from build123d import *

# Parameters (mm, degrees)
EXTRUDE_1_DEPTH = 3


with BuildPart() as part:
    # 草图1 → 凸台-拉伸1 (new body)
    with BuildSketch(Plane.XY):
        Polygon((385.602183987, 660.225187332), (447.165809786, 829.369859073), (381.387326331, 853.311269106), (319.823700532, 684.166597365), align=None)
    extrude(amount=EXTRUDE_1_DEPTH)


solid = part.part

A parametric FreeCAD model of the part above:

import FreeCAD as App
import Part
import Sketcher
Q = App.Units.Quantity

doc = App.newDocument("Part")
body = doc.addObject("PartDesign::Body", "Body")

sketch1 = body.newObject("Sketcher::SketchObject", "Sketch")
sketch1.AttachmentSupport = (doc.getObject("XY_Plane"), [""])
sketch1.MapMode = "FlatFace"
sketch1.addGeometry(Part.LineSegment(App.Vector(386, 660, 0), App.Vector(447, 829, 0)), False)
sketch1.addGeometry(Part.LineSegment(App.Vector(447, 829, 0), App.Vector(381, 853, 0)), False)
sketch1.addGeometry(Part.LineSegment(App.Vector(381, 853, 0), App.Vector(320, 684, 0)), False)
sketch1.addGeometry(Part.LineSegment(App.Vector(320, 684, 0), App.Vector(386, 660, 0)), False)
sketch1.addConstraint(Sketcher.Constraint("Coincident", 0, 2, 1, 1))
sketch1.addConstraint(Sketcher.Constraint("Coincident", 1, 2, 2, 1))
sketch1.addConstraint(Sketcher.Constraint("Coincident", 2, 2, 3, 1))
sketch1.addConstraint(Sketcher.Constraint("Coincident", 3, 2, 0, 1))
sketch1.addConstraint(Sketcher.Constraint("Perpendicular", 0, 1))
sketch1.addConstraint(Sketcher.Constraint("Perpendicular", 1, 2))
sketch1.addConstraint(Sketcher.Constraint("Perpendicular", 2, 3))
sketch1.addConstraint(Sketcher.Constraint("Angle", 0, Q("70 deg")))
sketch1.addConstraint(Sketcher.Constraint("Distance", 0, 180.0))
sketch1.addConstraint(Sketcher.Constraint("Distance", 1, 70.0))
sketch1.addConstraint(Sketcher.Constraint("DistanceX", -1, 1, 2, 2, 319.823701))
sketch1.addConstraint(Sketcher.Constraint("DistanceY", -1, 1, 0, 2, 829.369859))
pad1 = body.newObject("PartDesign::Pad", "Pad")
pad1.Profile = sketch1
pad1.Length = 3

doc.recompute()
